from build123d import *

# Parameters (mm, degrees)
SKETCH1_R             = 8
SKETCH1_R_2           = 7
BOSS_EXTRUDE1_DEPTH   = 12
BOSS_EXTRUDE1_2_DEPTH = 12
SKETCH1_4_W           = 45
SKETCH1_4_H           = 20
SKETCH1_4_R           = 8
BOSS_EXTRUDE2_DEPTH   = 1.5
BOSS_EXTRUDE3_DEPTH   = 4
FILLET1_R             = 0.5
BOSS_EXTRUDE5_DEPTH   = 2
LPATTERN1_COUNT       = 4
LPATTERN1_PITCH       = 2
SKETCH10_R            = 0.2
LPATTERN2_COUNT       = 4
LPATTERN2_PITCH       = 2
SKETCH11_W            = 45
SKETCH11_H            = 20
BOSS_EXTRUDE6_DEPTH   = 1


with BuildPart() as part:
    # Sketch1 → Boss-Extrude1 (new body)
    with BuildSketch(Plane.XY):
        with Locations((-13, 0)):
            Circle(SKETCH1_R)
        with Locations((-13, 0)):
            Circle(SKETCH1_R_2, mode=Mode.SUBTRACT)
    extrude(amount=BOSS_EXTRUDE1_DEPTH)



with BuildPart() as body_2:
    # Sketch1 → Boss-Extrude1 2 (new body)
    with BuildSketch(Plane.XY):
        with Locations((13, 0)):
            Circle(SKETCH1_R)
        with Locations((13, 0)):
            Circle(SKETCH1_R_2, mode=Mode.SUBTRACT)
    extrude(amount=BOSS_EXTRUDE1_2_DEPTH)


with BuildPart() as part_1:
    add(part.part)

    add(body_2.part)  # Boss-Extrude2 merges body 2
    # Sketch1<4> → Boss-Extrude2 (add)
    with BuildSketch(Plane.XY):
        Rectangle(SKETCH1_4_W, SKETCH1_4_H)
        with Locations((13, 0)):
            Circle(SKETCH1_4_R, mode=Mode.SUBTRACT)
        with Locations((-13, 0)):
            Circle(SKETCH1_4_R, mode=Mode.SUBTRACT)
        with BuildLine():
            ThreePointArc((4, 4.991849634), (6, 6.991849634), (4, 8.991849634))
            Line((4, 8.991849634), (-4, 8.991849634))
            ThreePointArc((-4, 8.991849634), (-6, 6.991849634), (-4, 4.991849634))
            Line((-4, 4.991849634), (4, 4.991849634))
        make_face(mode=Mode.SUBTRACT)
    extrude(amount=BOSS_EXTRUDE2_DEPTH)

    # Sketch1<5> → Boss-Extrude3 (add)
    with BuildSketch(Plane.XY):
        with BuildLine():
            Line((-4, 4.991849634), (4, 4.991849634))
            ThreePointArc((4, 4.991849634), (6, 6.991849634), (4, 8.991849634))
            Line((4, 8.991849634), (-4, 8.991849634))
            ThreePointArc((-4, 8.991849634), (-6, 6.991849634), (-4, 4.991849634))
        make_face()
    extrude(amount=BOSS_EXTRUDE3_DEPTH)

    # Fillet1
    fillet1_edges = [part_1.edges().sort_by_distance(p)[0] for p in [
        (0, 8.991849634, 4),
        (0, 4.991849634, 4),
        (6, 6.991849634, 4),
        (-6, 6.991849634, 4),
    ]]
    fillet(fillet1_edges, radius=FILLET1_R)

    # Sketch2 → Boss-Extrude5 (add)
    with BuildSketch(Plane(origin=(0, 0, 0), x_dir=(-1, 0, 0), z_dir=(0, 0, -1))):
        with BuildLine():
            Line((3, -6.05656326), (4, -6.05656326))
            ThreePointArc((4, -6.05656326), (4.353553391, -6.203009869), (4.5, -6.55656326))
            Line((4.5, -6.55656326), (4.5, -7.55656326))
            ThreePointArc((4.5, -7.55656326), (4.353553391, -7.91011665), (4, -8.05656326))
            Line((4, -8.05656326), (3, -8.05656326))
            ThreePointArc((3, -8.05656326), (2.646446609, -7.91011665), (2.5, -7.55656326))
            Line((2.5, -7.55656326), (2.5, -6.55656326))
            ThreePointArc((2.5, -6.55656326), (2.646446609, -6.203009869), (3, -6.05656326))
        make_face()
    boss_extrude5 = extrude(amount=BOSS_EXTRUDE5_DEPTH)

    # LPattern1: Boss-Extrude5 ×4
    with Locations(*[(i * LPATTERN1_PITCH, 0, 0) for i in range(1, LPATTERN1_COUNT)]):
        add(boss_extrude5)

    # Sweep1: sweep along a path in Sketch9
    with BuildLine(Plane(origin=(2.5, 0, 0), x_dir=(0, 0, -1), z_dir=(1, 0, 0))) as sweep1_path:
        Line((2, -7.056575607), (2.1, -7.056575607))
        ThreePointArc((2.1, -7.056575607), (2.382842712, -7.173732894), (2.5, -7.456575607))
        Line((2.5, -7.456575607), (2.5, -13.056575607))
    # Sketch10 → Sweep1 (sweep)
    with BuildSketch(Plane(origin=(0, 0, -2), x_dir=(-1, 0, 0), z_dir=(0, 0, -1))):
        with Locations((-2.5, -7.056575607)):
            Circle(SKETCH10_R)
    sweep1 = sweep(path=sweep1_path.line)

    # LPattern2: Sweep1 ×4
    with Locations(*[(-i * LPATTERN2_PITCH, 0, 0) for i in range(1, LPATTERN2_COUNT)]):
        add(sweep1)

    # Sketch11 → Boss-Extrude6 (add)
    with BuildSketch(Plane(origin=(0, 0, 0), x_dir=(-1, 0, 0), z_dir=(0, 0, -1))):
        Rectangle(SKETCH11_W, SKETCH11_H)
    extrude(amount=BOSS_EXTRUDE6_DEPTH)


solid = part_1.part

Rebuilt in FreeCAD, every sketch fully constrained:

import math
import FreeCAD as App
import Part
import Sketcher

V = App.Vector


def edges_at(feature, points):
    """Names of the edges that pass closest to the given points."""
    edges = feature.Shape.Edges
    near = lambda p: min(range(len(edges)), key=lambda i: edges[i].distToShape(Part.Vertex(*p))[0])
    return sorted({f"Edge{near(p) + 1}" for p in points})


def add_polygon(sketch, points):
    """Adds a closed chain of lines whose ends are joined by coincident constraints."""
    first, n = sketch.GeometryCount, len(points)
    for a, b in zip(points, points[1:] + points[:1]):
        sketch.addGeometry(Part.LineSegment(App.Vector(*a, 0), App.Vector(*b, 0)), False)
    for i in range(n):
        sketch.addConstraint(Sketcher.Constraint("Coincident", first + i, 2, first + (i + 1) % n, 1))

doc = App.newDocument("Part")
body = doc.addObject("PartDesign::Body", "Body")

# Sketch on XY plane
sketch1 = doc.addObject("Sketcher::SketchObject", "Sketch")
body.addObject(sketch1)
sketch1.AttachmentSupport = (doc.XY_Plane, [""])
sketch1.MapMode = "FlatFace"
sketch1.addGeometry([
    Part.Circle(V(-13, 0, 0), V(0, 0, 1), 8),
    Part.Circle(V(-13, 0, 0), V(0, 0, 1), 7),
], False)
sketch1.addConstraint([
    Sketcher.Constraint("Coincident", 1, 3, 0, 3),
    Sketcher.Constraint("PointOnObject", 0, 3, -1),
    Sketcher.Constraint("Diameter", 0, 16.0),
    Sketcher.Constraint("Diameter", 1, 14.0),
    Sketcher.Constraint("DistanceX", 0, 3, -1, 1, 13.0),
])
pad1 = doc.addObject("PartDesign::Pad", "Pad")
body.addObject(pad1)
pad1.Profile = sketch1
pad1.Length = 12
body2 = doc.addObject("PartDesign::Body", "Body001")

# Sketch on XY plane
sketch2 = doc.addObject("Sketcher::SketchObject", "Sketch001")
body2.addObject(sketch2)
sketch2.AttachmentSupport = (doc.getObject("XY_Plane001"), [""])
sketch2.MapMode = "FlatFace"
sketch2.addGeometry([
    Part.Circle(V(13, 0, 0), V(0, 0, 1), 8),
    Part.Circle(V(13, 0, 0), V(0, 0, 1), 7),
], False)
sketch2.addConstraint([
    Sketcher.Constraint("Coincident", 1, 3, 0, 3),
    Sketcher.Constraint("PointOnObject", 0, 3, -1),
    Sketcher.Constraint("Diameter", 0, 16.0),
    Sketcher.Constraint("Diameter", 1, 14.0),
    Sketcher.Constraint("DistanceX", -1, 1, 0, 3, 13.0),
])
pad2 = doc.addObject("PartDesign::Pad", "Pad001")
body2.addObject(pad2)
pad2.Profile = sketch2
pad2.Length = 12
body.AllowCompound = True
doc.recompute()

boolean = doc.addObject("PartDesign::Boolean", "Boolean")
body.addObject(boolean)
boolean.Type = "Fuse"
boolean.addObjects([body2])

# Sketch on XY plane
sketch3 = doc.addObject("Sketcher::SketchObject", "Sketch002")
body.addObject(sketch3)
sketch3.AttachmentSupport = (doc.XY_Plane, [""])
sketch3.MapMode = "FlatFace"
add_polygon(sketch3, [(-22.5, 10), (-22.5, -10), (22.5, -10), (22.5, 10)])  # lines 0-3
sketch3.addGeometry(Part.Circle(V(-13, 0, 0), V(0, 0, 1), 8), False)  # 4
sketch3.addGeometry(Part.Circle(V(13, 0, 0), V(0, 0, 1), 8), False)  # 5
sketch3.addGeometry(Part.ArcOfCircle(Part.Circle(V(4, 7, 0), V(0, 0, 1), 2), math.radians(-90), math.radians(90)), False)  # 6
sketch3.addGeometry(Part.LineSegment(V(4, 5, 0), V(-4, 5, 0)), False)  # 7
sketch3.addGeometry(Part.ArcOfCircle(Part.Circle(V(-4, 7, 0), V(0, 0, 1), 2), math.radians(90), math.radians(270)), False)  # 8
sketch3.addGeometry(Part.LineSegment(V(-4, 9, 0), V(4, 9, 0)), False)  # 9
sketch3.addConstraint([
    Sketcher.Constraint("Tangent", 6, 1, 7, 1),
    Sketcher.Constraint("Tangent", 7, 2, 8, 2),
    Sketcher.Constraint("Tangent", 8, 1, 9, 1),
    Sketcher.Constraint("Tangent", 9, 2, 6, 2),
    Sketcher.Constraint("Vertical", 0),
    Sketcher.Constraint("Horizontal", 1),
    Sketcher.Constraint("Vertical", 2),
    Sketcher.Constraint("Horizontal", 3),
    Sketcher.Constraint("Horizontal", 7),
    Sketcher.Constraint("Horizontal", 9),
    Sketcher.Constraint("Equal", 4, 5),
    Sketcher.Constraint("Symmetric", 4, 3, 5, 3, -1, 1),
    Sketcher.Constraint("Symmetric", 0, 2, 2, 2, -1, 1),
    Sketcher.Constraint("PointOnObject", 4, 3, -1),
    Sketcher.Constraint("Diameter", 4, 16.0),
    Sketcher.Constraint("Radius", 6, 2.0),
    Sketcher.Constraint("DistanceX", 1, 1, 1, 2, 45.0),
    Sketcher.Constraint("DistanceX", 7, 2, 7, 1, 8.0),
    Sketcher.Constraint("DistanceY", 0, 2, 0, 1, 20.0),
    Sketcher.Constraint("DistanceX", 4, 3, -1, 1, 13.0),
    Sketcher.Constraint("DistanceX", -1, 1, 6, 3, 4.0),
    Sketcher.Constraint("DistanceY", -1, 1, 6, 3, 6.99185),
])
pad3 = doc.addObject("PartDesign::Pad", "Pad002")
body.addObject(pad3)
pad3.Profile = sketch3
pad3.Length = 1.5

# Sketch on XY plane
sketch4 = doc.addObject("Sketcher::SketchObject", "Sketch003")
body.addObject(sketch4)
sketch4.AttachmentSupport = (doc.XY_Plane, [""])
sketch4.MapMode = "FlatFace"
sketch4.addGeometry([
    Part.LineSegment(V(-4, 5, 0), V(4, 5, 0)),
    Part.ArcOfCircle(Part.Circle(V(4, 7, 0), V(0, 0, 1), 2), math.radians(-90), math.radians(90)),
    Part.LineSegment(V(4, 9, 0), V(-4, 9, 0)),
    Part.ArcOfCircle(Part.Circle(V(-4, 7, 0), V(0, 0, 1), 2), math.radians(90), math.radians(270)),
], False)
sketch4.addConstraint([
    Sketcher.Constraint("Tangent", 0, 2, 1, 1),
    Sketcher.Constraint("Tangent", 1, 2, 2, 1),
    Sketcher.Constraint("Tangent", 2, 2, 3, 1),
    Sketcher.Constraint("Tangent", 3, 2, 0, 1),
    Sketcher.Constraint("Horizontal", 0),
    Sketcher.Constraint("Horizontal", 2),
    Sketcher.Constraint("Radius", 1, 2.0),
    Sketcher.Constraint("DistanceX", 0, 1, 0, 2, 8.0),
    Sketcher.Constraint("DistanceX", -1, 1, 1, 3, 4.0),
    Sketcher.Constraint("DistanceY", -1, 1, 1, 3, 6.99185),
])
pad4 = doc.addObject("PartDesign::Pad", "Pad003")
body.addObject(pad4)
pad4.Profile = sketch4
pad4.Length = 4
doc.recompute()

fillet = doc.addObject("PartDesign::Fillet", "Fillet")
body.addObject(fillet)
fillet.Base = (pad4, edges_at(pad4, [
    (0, 8.992, 4),
    (0, 4.992, 4),
    (6, 6.992, 4),
    (-6, 6.992, 4),
]))
fillet.Radius = 0.5

# Sketch on XY plane
sketch5 = doc.addObject("Sketcher::SketchObject", "Sketch004")
body.addObject(sketch5)
sketch5.AttachmentSupport = (doc.XY_Plane, [""])
sketch5.MapMode = "FlatFace"
sketch5.addGeometry([
    Part.LineSegment(V(-4, -6.06, 0), V(-3, -6.06, 0)),  # 0
    Part.ArcOfCircle(Part.Circle(V(-3, -6.56, 0), V(0, 0, 1), 0.5), math.radians(0), math.radians(90)),  # 1
    Part.LineSegment(V(-2.5, -6.56, 0), V(-2.5, -7.56, 0)),  # 2
    Part.ArcOfCircle(Part.Circle(V(-3, -7.56, 0), V(0, 0, 1), 0.5), math.radians(-90), math.radians(0)),  # 3
    Part.LineSegment(V(-3, -8.06, 0), V(-4, -8.06, 0)),  # 4
    Part.ArcOfCircle(Part.Circle(V(-4, -7.56, 0), V(0, 0, 1), 0.5), math.radians(180), math.radians(270)),  # 5
    Part.LineSegment(V(-4.5, -7.56, 0), V(-4.5, -6.56, 0)),  # 6
    Part.ArcOfCircle(Part.Circle(V(-4, -6.56, 0), V(0, 0, 1), 0.5), math.radians(90), math.radians(180)),  # 7
], False)
sketch5.addConstraint([
    Sketcher.Constraint("Tangent", 0, 2, 1, 2),
    Sketcher.Constraint("Tangent", 1, 1, 2, 1),
    Sketcher.Constraint("Tangent", 2, 2, 3, 2),
    Sketcher.Constraint("Tangent", 3, 1, 4, 1),
    Sketcher.Constraint("Tangent", 4, 2, 5, 2),
    Sketcher.Constraint("Tangent", 5, 1, 6, 1),
    Sketcher.Constraint("Tangent", 6, 2, 7, 2),
    Sketcher.Constraint("Tangent", 7, 1, 0, 1),
    Sketcher.Constraint("Horizontal", 0),
    Sketcher.Constraint("Vertical", 2),
    Sketcher.Constraint("Horizontal", 4),
    Sketcher.Constraint("Vertical", 6),
    Sketcher.Constraint("Equal", 1, 3),
    Sketcher.Constraint("Equal", 3, 5),
    Sketcher.Constraint("Equal", 5, 7),
    Sketcher.Constraint("Equal", 4, 2),
    Sketcher.Constraint("Radius", 1, 0.5),
    Sketcher.Constraint("DistanceX", 0, 1, 0, 2, 1.0),
    Sketcher.Constraint("DistanceX", 1, 3, -1, 1, 3.0),
    Sketcher.Constraint("DistanceY", 1, 3, -1, 1, 6.556563),
])
pad5 = doc.addObject("PartDesign::Pad", "Pad004")
body.addObject(pad5)
pad5.Profile = sketch5
pad5.Length = 2
pad5.Reversed = True
doc.recompute()

linearpattern = doc.addObject("PartDesign::LinearPattern", "LinearPattern")
body.addObject(linearpattern)
linearpattern.Originals = [pad5]
linearpattern.Direction = (doc.X_Axis, [""])
linearpattern.Mode = "offset"
linearpattern.Offset = 2
linearpattern.Occurrences = 4
body.Tip = linearpattern

# Sketch on XY plane
sketch6 = doc.addObject("Sketcher::SketchObject", "Sketch005")
body.addObject(sketch6)
sketch6.AttachmentSupport = (doc.XY_Plane, [""])
sketch6.MapMode = "FlatFace"
sketch6.AttachmentOffset = App.Placement(V(0, 0, -2), App.Rotation())
sketch6.addGeometry(Part.Circle(V(2.5, -7.06, 0), V(0, 0, 1), 0.2), False)
sketch6.addConstraint([
    Sketcher.Constraint("Diameter", 0, 0.4),
    Sketcher.Constraint("DistanceX", -1, 1, 0, 3, 2.5),
    Sketcher.Constraint("DistanceY", 0, 3, -1, 1, 7.056576),
])

# Sketch on YZ plane
sketch7 = doc.addObject("Sketcher::SketchObject", "Sketch006")
body.addObject(sketch7)
sketch7.AttachmentSupport = (doc.YZ_Plane, [""])
sketch7.MapMode = "FlatFace"
sketch7.AttachmentOffset = App.Placement(V(0, 0, 2.5), App.Rotation())
sketch7.addGeometry([
    Part.LineSegment(V(-7.06, -2, 0), V(-7.06, -2.1, 0)),
    Part.ArcOfCircle(Part.Circle(V(-7.46, -2.1, 0), V(0, 0, 1), 0.4), math.radians(-90), math.radians(0)),
    Part.LineSegment(V(-7.46, -2.5, 0), V(-13.06, -2.5, 0)),
], False)
sketch7.addConstraint([
    Sketcher.Constraint("Tangent", 0, 2, 1, 2),
    Sketcher.Constraint("Tangent", 1, 1, 2, 1),
    Sketcher.Constraint("Vertical", 0),
    Sketcher.Constraint("Horizontal", 2),
    Sketcher.Constraint("Radius", 1, 0.4),
    Sketcher.Constraint("DistanceX", 2, 2, 2, 1, 5.6),
    Sketcher.Constraint("DistanceY", 0, 2, 0, 1, 0.1),
    Sketcher.Constraint("DistanceY", 0, 1, -1, 1, 2.0),
    Sketcher.Constraint("DistanceX", 1, 3, -1, 1, 7.456576),
])
doc.recompute()

additivepipe = doc.addObject("PartDesign::AdditivePipe", "AdditivePipe")
body.addObject(additivepipe)
additivepipe.Profile = sketch6
additivepipe.Spine = (sketch7, ["Edge1", "Edge2", "Edge3"])
doc.recompute()

linearpattern2 = doc.addObject("PartDesign::LinearPattern", "LinearPattern001")
body.addObject(linearpattern2)
linearpattern2.Originals = [additivepipe]
linearpattern2.Direction = (doc.X_Axis, [""])
linearpattern2.Mode = "offset"
linearpattern2.Offset = 2
linearpattern2.Occurrences = 4
linearpattern2.Reversed = True
body.Tip = linearpattern2

# Sketch on XY plane
sketch8 = doc.addObject("Sketcher::SketchObject", "Sketch007")
body.addObject(sketch8)
sketch8.AttachmentSupport = (doc.XY_Plane, [""])
sketch8.MapMode = "FlatFace"
add_polygon(sketch8, [(22, 10), (22, -10), (-22, -10), (-22, 10)])  # lines 0-3
sketch8.addConstraint([
    Sketcher.Constraint("Vertical", 0),
    Sketcher.Constraint("Horizontal", 1),
    Sketcher.Constraint("Vertical", 2),
    Sketcher.Constraint("Horizontal", 3),
    Sketcher.Constraint("Symmetric", 0, 2, 2, 2, -1, 1),
    Sketcher.Constraint("DistanceX", 1, 2, 1, 1, 45.0),
    Sketcher.Constraint("DistanceY", 0, 2, 0, 1, 20.0),
])
pad6 = doc.addObject("PartDesign::Pad", "Pad005")
body.addObject(pad6)
pad6.Profile = sketch8
pad6.Length = 1
pad6.Reversed = True

doc.recompute()
